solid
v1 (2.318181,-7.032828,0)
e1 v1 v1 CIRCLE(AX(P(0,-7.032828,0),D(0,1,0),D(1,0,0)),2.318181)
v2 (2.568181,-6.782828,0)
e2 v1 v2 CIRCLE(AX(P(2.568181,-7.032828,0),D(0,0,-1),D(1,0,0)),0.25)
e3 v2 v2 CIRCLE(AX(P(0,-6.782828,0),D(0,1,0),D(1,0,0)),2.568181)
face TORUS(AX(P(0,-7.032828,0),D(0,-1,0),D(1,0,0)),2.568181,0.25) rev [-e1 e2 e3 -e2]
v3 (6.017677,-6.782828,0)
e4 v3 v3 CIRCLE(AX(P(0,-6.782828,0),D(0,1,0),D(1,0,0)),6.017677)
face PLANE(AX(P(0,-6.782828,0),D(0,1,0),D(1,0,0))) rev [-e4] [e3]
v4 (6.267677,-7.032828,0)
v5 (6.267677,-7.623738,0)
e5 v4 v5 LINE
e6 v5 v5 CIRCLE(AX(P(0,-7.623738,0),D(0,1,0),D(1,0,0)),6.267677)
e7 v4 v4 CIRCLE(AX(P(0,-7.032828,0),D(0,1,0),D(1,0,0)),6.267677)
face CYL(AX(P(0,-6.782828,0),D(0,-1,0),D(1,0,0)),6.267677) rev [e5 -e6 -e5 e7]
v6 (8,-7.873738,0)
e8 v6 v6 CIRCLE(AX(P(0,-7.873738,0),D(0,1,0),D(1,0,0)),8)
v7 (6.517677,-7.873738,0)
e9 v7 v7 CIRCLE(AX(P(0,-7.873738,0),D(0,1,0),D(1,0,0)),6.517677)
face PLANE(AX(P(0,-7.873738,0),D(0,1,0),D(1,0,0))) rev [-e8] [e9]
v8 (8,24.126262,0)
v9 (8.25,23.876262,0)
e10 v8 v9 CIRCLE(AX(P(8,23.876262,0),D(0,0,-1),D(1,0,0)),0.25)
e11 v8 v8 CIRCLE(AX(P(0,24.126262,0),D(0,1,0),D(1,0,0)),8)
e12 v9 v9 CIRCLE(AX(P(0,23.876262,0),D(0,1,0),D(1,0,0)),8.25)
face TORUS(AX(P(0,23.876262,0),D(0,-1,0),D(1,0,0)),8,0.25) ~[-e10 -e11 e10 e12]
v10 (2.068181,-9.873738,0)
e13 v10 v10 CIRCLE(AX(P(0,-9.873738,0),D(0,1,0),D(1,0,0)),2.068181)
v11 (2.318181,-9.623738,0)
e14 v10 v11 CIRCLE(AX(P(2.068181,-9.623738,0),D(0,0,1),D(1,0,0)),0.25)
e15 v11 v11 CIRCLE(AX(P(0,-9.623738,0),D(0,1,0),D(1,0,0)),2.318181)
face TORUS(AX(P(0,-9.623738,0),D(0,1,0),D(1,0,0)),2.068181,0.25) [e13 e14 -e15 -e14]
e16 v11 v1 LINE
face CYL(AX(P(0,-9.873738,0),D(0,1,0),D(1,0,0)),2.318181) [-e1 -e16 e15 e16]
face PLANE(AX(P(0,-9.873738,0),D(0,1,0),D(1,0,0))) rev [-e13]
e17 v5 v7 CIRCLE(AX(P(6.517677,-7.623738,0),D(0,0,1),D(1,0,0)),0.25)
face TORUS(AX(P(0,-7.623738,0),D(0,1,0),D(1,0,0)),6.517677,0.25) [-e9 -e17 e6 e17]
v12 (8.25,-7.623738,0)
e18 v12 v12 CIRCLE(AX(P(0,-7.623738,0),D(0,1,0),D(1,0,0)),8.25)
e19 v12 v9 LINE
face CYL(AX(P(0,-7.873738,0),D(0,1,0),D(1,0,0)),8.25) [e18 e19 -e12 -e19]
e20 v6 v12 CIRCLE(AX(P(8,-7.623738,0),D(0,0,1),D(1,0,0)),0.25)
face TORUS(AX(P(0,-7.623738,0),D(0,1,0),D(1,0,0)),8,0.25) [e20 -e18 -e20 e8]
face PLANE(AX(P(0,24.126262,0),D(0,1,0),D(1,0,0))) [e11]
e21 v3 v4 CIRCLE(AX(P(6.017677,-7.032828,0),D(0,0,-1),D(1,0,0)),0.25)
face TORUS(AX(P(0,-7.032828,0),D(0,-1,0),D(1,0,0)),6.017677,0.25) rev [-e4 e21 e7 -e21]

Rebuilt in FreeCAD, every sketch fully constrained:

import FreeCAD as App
import Part
import Sketcher
Q = App.Units.Quantity


def edges_at(feature, points):
    """Names of the edges that pass closest to the given points."""
    edges = feature.Shape.Edges
    near = lambda p: min(range(len(edges)), key=lambda i: edges[i].distToShape(Part.Vertex(*p))[0])
    return sorted({f"Edge{near(p) + 1}" for p in points})


def add_polygon(sketch, points):
    """Adds a closed chain of lines whose ends are joined by coincident constraints."""
    first, n = sketch.GeometryCount, len(points)
    for a, b in zip(points, points[1:] + points[:1]):
        sketch.addGeometry(Part.LineSegment(App.Vector(*a, 0), App.Vector(*b, 0)), False)
    for i in range(n):
        sketch.addConstraint(Sketcher.Constraint("Coincident", first + i, 2, first + (i + 1) % n, 1))

doc = App.newDocument("Part")
body = doc.addObject("PartDesign::Body", "Body")

# Sketch on XY plane
sketch1 = body.newObject("Sketcher::SketchObject", "Sketch")
sketch1.AttachmentSupport = (doc.getObject("XY_Plane"), [""])
sketch1.MapMode = "FlatFace"
add_polygon(sketch1, [(8.2, 24.1), (0, 24.1), (0, -9.9), (2.3, -9.9), (2.3, -6.8), (6.3, -6.8), (6.3, -7.9), (8.2, -7.9)])  # lines 0-7
sketch1.addConstraint(Sketcher.Constraint("Horizontal", 0))
sketch1.addConstraint(Sketcher.Constraint("Vertical", 1))
sketch1.addConstraint(Sketcher.Constraint("Horizontal", 2))
sketch1.addConstraint(Sketcher.Constraint("Vertical", 3))
sketch1.addConstraint(Sketcher.Constraint("Horizontal", 4))
sketch1.addConstraint(Sketcher.Constraint("Vertical", 5))
sketch1.addConstraint(Sketcher.Constraint("Horizontal", 6))
sketch1.addConstraint(Sketcher.Constraint("Vertical", 7))
sketch1.addConstraint(Sketcher.Constraint("PointOnObject", 0, 2, -2))
sketch1.addConstraint(Sketcher.Constraint("DistanceY", 1, 2, 1, 1, Q("34 mm")))
sketch1.addConstraint(Sketcher.Constraint("DistanceY", 7, 1, 7, 2, Q("32 mm")))
sketch1.addConstraint(Sketcher.Constraint("DistanceX", 0, 2, 0, 1, Q("8.25 mm")))
sketch1.addConstraint(Sketcher.Constraint("DistanceX", 2, 1, 2, 2, Q("2.318181 mm")))
sketch1.addConstraint(Sketcher.Constraint("DistanceY", 3, 1, 3, 2, Q("3.09091 mm")))
sketch1.addConstraint(Sketcher.Constraint("DistanceX", 4, 1, 4, 2, Q("3.949496 mm")))
sketch1.addConstraint(Sketcher.Constraint("DistanceY", 3, 2, -1, 1, Q("6.782828 mm")))
revolution = body.newObject("PartDesign::Revolution", "Revolution")
revolution.Profile = sketch1
revolution.ReferenceAxis = (sketch1, ["V_Axis"])
revolution.Angle = 360
doc.recompute()

fillet = body.newObject("PartDesign::Fillet", "Fillet")
fillet.Base = (revolution, edges_at(revolution, [
    (-8.25, 24.126, 0),
    (-8.25, -7.874, 0),
    (-6.268, -7.874, 0),
    (-6.268, -6.783, 0),
    (-2.318, -6.783, 0),
    (-2.318, -9.874, 0),
]))
fillet.Radius = 0.25

doc.recompute()
